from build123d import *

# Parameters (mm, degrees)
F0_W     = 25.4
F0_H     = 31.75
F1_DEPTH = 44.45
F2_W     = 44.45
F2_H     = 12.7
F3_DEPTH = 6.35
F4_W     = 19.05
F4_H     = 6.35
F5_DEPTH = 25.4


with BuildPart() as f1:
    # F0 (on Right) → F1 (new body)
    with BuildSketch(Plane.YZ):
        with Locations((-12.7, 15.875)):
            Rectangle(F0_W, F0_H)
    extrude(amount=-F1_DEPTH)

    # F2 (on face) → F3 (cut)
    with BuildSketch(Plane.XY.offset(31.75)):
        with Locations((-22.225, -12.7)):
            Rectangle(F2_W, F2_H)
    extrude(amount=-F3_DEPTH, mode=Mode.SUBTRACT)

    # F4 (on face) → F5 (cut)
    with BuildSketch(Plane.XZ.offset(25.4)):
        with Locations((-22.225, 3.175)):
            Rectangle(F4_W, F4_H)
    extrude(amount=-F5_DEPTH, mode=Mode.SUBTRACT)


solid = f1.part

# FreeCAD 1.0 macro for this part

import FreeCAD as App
import Part
import Sketcher

V = App.Vector
Q = App.Units.Quantity


def add_polygon(sketch, points):
    """Adds a closed chain of lines whose ends are joined by coincident constraints."""
    first, n = sketch.GeometryCount, len(points)
    for a, b in zip(points, points[1:] + points[:1]):
        sketch.addGeometry(Part.LineSegment(App.Vector(*a, 0), App.Vector(*b, 0)), False)
    for i in range(n):
        sketch.addConstraint(Sketcher.Constraint("Coincident", first + i, 2, first + (i + 1) % n, 1))

doc = App.newDocument("Part")
body = doc.addObject("PartDesign::Body", "Body")

# Sketch on YZ plane
sketch1 = doc.addObject("Sketcher::SketchObject", "Sketch")
body.addObject(sketch1)
sketch1.AttachmentSupport = (doc.YZ_Plane, [""])
sketch1.MapMode = "FlatFace"
add_polygon(sketch1, [(-25, 32), (-25, 0), (0, 0), (0, 32)])  # lines 0-3
sketch1.addConstraint(Sketcher.Constraint("Vertical", 0))
sketch1.addConstraint(Sketcher.Constraint("Horizontal", 1))
sketch1.addConstraint(Sketcher.Constraint("Vertical", 2))
sketch1.addConstraint(Sketcher.Constraint("Horizontal", 3))
sketch1.addConstraint(Sketcher.Constraint("Coincident", 1, 2, -1, 1))
sketch1.addConstraint(Sketcher.Constraint("DistanceX", 1, 1, 1, 2, Q("1 in")))
sketch1.addConstraint(Sketcher.Constraint("DistanceY", 0, 2, 0, 1, Q("1.25 in")))
pad1 = doc.addObject("PartDesign::Pad", "Pad")
body.addObject(pad1)
pad1.Profile = sketch1
pad1.Length = Q("1.75 in")
pad1.Reversed = True

# Sketch on XY plane
sketch2 = doc.addObject("Sketcher::SketchObject", "Sketch001")
body.addObject(sketch2)
sketch2.AttachmentSupport = (doc.XY_Plane, [""])
sketch2.MapMode = "FlatFace"
sketch2.AttachmentOffset = App.Placement(V(0, 0, 1.25 * 25.4), App.Rotation())
add_polygon(sketch2, [(-44, -6), (-44, -19), (0, -19), (0, -6)])  # lines 0-3
sketch2.addConstraint(Sketcher.Constraint("Vertical", 0))
sketch2.addConstraint(Sketcher.Constraint("Horizontal", 1))
sketch2.addConstraint(Sketcher.Constraint("Vertical", 2))
sketch2.addConstraint(Sketcher.Constraint("Horizontal", 3))
sketch2.addConstraint(Sketcher.Constraint("PointOnObject", 1, 2, -2))
sketch2.addConstraint(Sketcher.Constraint("DistanceY", 0, 2, 0, 1, Q("0.5 in")))
sketch2.addConstraint(Sketcher.Constraint("DistanceX", 1, 1, 1, 2, Q("1.75 in")))
sketch2.addConstraint(Sketcher.Constraint("DistanceY", 0, 2, -1, 1, Q("0.75 in")))
pocket1 = doc.addObject("PartDesign::Pocket", "Pocket")
body.addObject(pocket1)
pocket1.Profile = sketch2
pocket1.Length = Q("0.25 in")

# Sketch on XZ plane
sketch3 = doc.addObject("Sketcher::SketchObject", "Sketch002")
body.addObject(sketch3)
sketch3.AttachmentSupport = (doc.XZ_Plane, [""])
sketch3.MapMode = "FlatFace"
sketch3.AttachmentOffset = App.Placement(V(0, 0, 1 * 25.4), App.Rotation())
add_polygon(sketch3, [(-32, 6), (-32, 0), (-13, 0), (-13, 6)])  # lines 0-3
sketch3.addConstraint(Sketcher.Constraint("Vertical", 0))
sketch3.addConstraint(Sketcher.Constraint("Horizontal", 1))
sketch3.addConstraint(Sketcher.Constraint("Vertical", 2))
sketch3.addConstraint(Sketcher.Constraint("Horizontal", 3))
sketch3.addConstraint(Sketcher.Constraint("PointOnObject", 0, 2, -1))
sketch3.addConstraint(Sketcher.Constraint("DistanceX", 1, 1, 1, 2, Q("0.75 in")))
sketch3.addConstraint(Sketcher.Constraint("DistanceY", 0, 2, 0, 1, Q("0.25 in")))
sketch3.addConstraint(Sketcher.Constraint("DistanceX", 1, 2, -1, 1, Q("0.5 in")))
pocket2 = doc.addObject("PartDesign::Pocket", "Pocket001")
body.addObject(pocket2)
pocket2.Profile = sketch3
pocket2.Length = Q("1 in")

doc.recompute()
